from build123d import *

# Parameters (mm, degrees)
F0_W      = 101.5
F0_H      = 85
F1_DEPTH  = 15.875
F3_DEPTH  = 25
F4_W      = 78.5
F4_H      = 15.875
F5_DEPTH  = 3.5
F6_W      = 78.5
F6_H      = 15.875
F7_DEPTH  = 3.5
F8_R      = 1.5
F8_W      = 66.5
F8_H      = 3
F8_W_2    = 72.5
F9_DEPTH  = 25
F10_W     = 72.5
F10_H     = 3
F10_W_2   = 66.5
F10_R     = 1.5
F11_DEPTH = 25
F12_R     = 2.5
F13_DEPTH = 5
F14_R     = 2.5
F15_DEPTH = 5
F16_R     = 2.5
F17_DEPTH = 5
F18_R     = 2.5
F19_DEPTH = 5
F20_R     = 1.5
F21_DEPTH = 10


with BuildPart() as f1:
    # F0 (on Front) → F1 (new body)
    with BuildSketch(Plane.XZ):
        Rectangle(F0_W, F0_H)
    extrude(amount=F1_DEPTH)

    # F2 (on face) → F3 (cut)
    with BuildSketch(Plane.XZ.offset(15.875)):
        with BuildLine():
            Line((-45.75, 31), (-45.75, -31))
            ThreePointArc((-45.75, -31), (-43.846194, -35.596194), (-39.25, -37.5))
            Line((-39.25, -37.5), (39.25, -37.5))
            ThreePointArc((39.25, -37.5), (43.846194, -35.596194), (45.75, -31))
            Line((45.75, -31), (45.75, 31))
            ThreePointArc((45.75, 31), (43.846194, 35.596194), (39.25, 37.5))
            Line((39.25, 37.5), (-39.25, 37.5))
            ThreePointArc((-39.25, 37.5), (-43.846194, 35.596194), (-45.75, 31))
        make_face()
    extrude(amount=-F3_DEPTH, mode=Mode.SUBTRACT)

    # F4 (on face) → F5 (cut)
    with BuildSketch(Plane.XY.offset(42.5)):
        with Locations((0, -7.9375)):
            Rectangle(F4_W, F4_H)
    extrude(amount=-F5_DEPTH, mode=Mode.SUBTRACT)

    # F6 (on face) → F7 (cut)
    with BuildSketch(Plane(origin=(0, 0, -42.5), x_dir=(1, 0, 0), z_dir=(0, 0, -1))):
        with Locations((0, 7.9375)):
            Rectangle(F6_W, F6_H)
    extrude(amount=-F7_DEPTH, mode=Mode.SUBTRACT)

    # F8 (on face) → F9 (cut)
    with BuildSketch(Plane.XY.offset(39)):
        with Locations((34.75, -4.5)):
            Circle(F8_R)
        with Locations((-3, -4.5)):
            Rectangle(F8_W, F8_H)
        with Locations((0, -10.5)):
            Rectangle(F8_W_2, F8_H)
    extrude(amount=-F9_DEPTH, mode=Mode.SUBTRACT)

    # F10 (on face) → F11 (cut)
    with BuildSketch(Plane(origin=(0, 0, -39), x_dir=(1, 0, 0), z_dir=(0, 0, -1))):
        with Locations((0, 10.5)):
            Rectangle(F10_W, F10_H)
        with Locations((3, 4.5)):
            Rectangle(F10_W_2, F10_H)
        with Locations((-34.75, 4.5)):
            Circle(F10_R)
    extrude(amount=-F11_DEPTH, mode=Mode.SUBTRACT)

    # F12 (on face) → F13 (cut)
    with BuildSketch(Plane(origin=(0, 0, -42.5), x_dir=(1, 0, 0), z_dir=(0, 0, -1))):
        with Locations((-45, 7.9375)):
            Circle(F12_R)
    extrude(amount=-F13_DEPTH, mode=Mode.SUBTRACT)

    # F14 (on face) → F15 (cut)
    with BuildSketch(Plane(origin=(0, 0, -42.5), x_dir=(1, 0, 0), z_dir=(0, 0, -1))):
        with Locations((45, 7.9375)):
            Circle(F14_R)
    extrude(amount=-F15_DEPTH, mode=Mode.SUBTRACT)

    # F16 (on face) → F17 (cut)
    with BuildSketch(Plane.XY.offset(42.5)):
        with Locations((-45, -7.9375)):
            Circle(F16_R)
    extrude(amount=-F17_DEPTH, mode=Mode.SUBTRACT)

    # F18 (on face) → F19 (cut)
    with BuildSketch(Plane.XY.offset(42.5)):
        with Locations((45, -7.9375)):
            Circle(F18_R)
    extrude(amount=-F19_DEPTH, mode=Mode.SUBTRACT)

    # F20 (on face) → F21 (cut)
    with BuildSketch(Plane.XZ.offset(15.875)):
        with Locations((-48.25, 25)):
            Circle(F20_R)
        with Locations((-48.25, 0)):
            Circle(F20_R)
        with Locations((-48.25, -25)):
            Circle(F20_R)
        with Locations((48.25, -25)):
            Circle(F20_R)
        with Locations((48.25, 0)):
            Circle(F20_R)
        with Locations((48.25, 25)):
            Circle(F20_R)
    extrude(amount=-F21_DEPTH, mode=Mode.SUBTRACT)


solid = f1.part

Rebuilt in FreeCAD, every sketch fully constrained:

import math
import FreeCAD as App
import Part
import Sketcher
from FreeCAD import Vector


def add_polygon(sketch, points):
    """Adds a closed chain of lines whose ends are joined by coincident constraints."""
    first, n = sketch.GeometryCount, len(points)
    for a, b in zip(points, points[1:] + points[:1]):
        sketch.addGeometry(Part.LineSegment(App.Vector(*a, 0), App.Vector(*b, 0)), False)
    for i in range(n):
        sketch.addConstraint(Sketcher.Constraint("Coincident", first + i, 2, first + (i + 1) % n, 1))

doc = App.newDocument("Part")
body = doc.addObject("PartDesign::Body", "Body")

# Sketch on XZ plane
sketch1 = doc.addObject("Sketcher::SketchObject", "Sketch")
body.addObject(sketch1)
sketch1.AttachmentSupport = (doc.XZ_Plane, [""])
sketch1.MapMode = "FlatFace"
add_polygon(sketch1, [(-51, 42), (-51, -42), (51, -42), (51, 42)])  # lines 0-3
sketch1.addConstraint([
    Sketcher.Constraint("Vertical", 0),
    Sketcher.Constraint("Horizontal", 1),
    Sketcher.Constraint("Vertical", 2),
    Sketcher.Constraint("Horizontal", 3),
    Sketcher.Constraint("Symmetric", 0, 2, 2, 2, -1, 1),
    Sketcher.Constraint("DistanceY", 0, 2, 0, 1, 85.0),
    Sketcher.Constraint("DistanceX", 1, 1, 1, 2, 101.5),
])
pad1 = doc.addObject("PartDesign::Pad", "Pad")
body.addObject(pad1)
pad1.Profile = sketch1
pad1.Length = 15.875

# Sketch on XZ plane
sketch2 = doc.addObject("Sketcher::SketchObject", "Sketch001")
body.addObject(sketch2)
sketch2.AttachmentSupport = (doc.XZ_Plane, [""])
sketch2.MapMode = "FlatFace"
sketch2.AttachmentOffset = App.Placement(Vector(0, 0, 15.875), App.Rotation())
sketch2.addGeometry([
    Part.LineSegment(Vector(-46, 31, 0), Vector(-46, -31, 0)),  # 0
    Part.ArcOfCircle(Part.Circle(Vector(-39, -31, 0), Vector(0, 0, 1), 7), math.radians(-180), math.radians(-90)),  # 1
    Part.LineSegment(Vector(-39, -38, 0), Vector(39, -38, 0)),  # 2
    Part.ArcOfCircle(Part.Circle(Vector(39, -31, 0), Vector(0, 0, 1), 7), math.radians(-90), math.radians(0)),  # 3
    Part.LineSegment(Vector(46, -31, 0), Vector(46, 31, 0)),  # 4
    Part.ArcOfCircle(Part.Circle(Vector(39, 31, 0), Vector(0, 0, 1), 7), math.radians(0), math.radians(90)),  # 5
    Part.LineSegment(Vector(39, 38, 0), Vector(-39, 38, 0)),  # 6
    Part.ArcOfCircle(Part.Circle(Vector(-39, 31, 0), Vector(0, 0, 1), 7), math.radians(90), math.radians(180)),  # 7
], False)
sketch2.addConstraint([
    Sketcher.Constraint("Tangent", 0, 2, 1, 1),
    Sketcher.Constraint("Tangent", 1, 2, 2, 1),
    Sketcher.Constraint("Tangent", 2, 2, 3, 1),
    Sketcher.Constraint("Tangent", 3, 2, 4, 1),
    Sketcher.Constraint("Tangent", 4, 2, 5, 1),
    Sketcher.Constraint("Tangent", 5, 2, 6, 1),
    Sketcher.Constraint("Tangent", 6, 2, 7, 1),
    Sketcher.Constraint("Tangent", 7, 2, 0, 1),
    Sketcher.Constraint("Vertical", 0),
    Sketcher.Constraint("Horizontal", 2),
    Sketcher.Constraint("Vertical", 4),
    Sketcher.Constraint("Horizontal", 6),
    Sketcher.Constraint("Equal", 1, 3),
    Sketcher.Constraint("Equal", 3, 5),
    Sketcher.Constraint("Equal", 5, 7),
    Sketcher.Constraint("Symmetric", 1, 3, 5, 3, -1, 1),
    Sketcher.Constraint("Radius", 1, 6.5),
    Sketcher.Constraint("DistanceY", 0, 2, 0, 1, 62.0),
    Sketcher.Constraint("DistanceX", 2, 1, 2, 2, 78.5),
])
pocket1 = doc.addObject("PartDesign::Pocket", "Pocket")
body.addObject(pocket1)
pocket1.Profile = sketch2
pocket1.Length = 25

# Sketch on XY plane
sketch3 = doc.addObject("Sketcher::SketchObject", "Sketch002")
body.addObject(sketch3)
sketch3.AttachmentSupport = (doc.XY_Plane, [""])
sketch3.MapMode = "FlatFace"
sketch3.AttachmentOffset = App.Placement(Vector(0, 0, 42.5), App.Rotation())
add_polygon(sketch3, [(-39, 0), (-39, -16), (39, -16), (39, 0)])  # lines 0-3
sketch3.addConstraint([
    Sketcher.Constraint("Vertical", 0),
    Sketcher.Constraint("Horizontal", 1),
    Sketcher.Constraint("Vertical", 2),
    Sketcher.Constraint("Horizontal", 3),
    Sketcher.Constraint("Symmetric", 2, 2, 3, 2, -1, 1),
    Sketcher.Constraint("DistanceX", 1, 1, 1, 2, 78.5),
    Sketcher.Constraint("DistanceY", 0, 2, 0, 1, 15.875),
])
pocket2 = doc.addObject("PartDesign::Pocket", "Pocket001")
body.addObject(pocket2)
pocket2.Profile = sketch3
pocket2.Length = 3.5

# Sketch on XY plane
sketch4 = doc.addObject("Sketcher::SketchObject", "Sketch003")
body.addObject(sketch4)
sketch4.AttachmentSupport = (doc.XY_Plane, [""])
sketch4.MapMode = "FlatFace"
sketch4.AttachmentOffset = App.Placement(Vector(0, 0, -42.5), App.Rotation())
add_polygon(sketch4, [(-39, -16), (-39, 0), (39, 0), (39, -16)])  # lines 0-3
sketch4.addConstraint([
    Sketcher.Constraint("Vertical", 0),
    Sketcher.Constraint("Horizontal", 1),
    Sketcher.Constraint("Vertical", 2),
    Sketcher.Constraint("Horizontal", 3),
    Sketcher.Constraint("Symmetric", 0, 2, 1, 2, -1, 1),
    Sketcher.Constraint("DistanceX", 1, 1, 1, 2, 78.5),
    Sketcher.Constraint("DistanceY", 0, 1, 0, 2, 15.875),
])
pocket3 = doc.addObject("PartDesign::Pocket", "Pocket002")
body.addObject(pocket3)
pocket3.Profile = sketch4
pocket3.Length = 3.5
pocket3.Reversed = True

# Sketch on XY plane
sketch5 = doc.addObject("Sketcher::SketchObject", "Sketch004")
body.addObject(sketch5)
sketch5.AttachmentSupport = (doc.XY_Plane, [""])
sketch5.MapMode = "FlatFace"
sketch5.AttachmentOffset = App.Placement(Vector(0, 0, 39), App.Rotation())
sketch5.addGeometry(Part.Circle(Vector(34.8, -4.5, 0), Vector(0, 0, 1), 1.5), False)  # 0
add_polygon(sketch5, [(-36.2, -3), (-36.2, -6), (30.2, -6), (30.2, -3)])  # lines 1-4
add_polygon(sketch5, [(-36.2, -9), (-36.2, -12), (36.2, -12), (36.2, -9)])  # lines 5-8
sketch5.addConstraint([
    Sketcher.Constraint("Vertical", 1),
    Sketcher.Constraint("Horizontal", 2),
    Sketcher.Constraint("Vertical", 3),
    Sketcher.Constraint("Horizontal", 4),
    Sketcher.Constraint("Vertical", 5),
    Sketcher.Constraint("Horizontal", 6),
    Sketcher.Constraint("Vertical", 7),
    Sketcher.Constraint("Horizontal", 8),
    Sketcher.Constraint("Vertical", 4, 2, 5, 2),
    Sketcher.Constraint("Equal", 3, 5),
    Sketcher.Constraint("Diameter", 0, 3.0),
    Sketcher.Constraint("DistanceY", 1, 2, 1, 1, 3.0),
    Sketcher.Constraint("DistanceX", 2, 1, 2, 2, 66.5),
    Sketcher.Constraint("DistanceX", 6, 1, 6, 2, 72.5),
    Sketcher.Constraint("DistanceY", 1, 2, -1, 1, 6.0),
    Sketcher.Constraint("DistanceY", 5, 2, -1, 1, 12.0),
    Sketcher.Constraint("DistanceX", 1, 2, 0, 3, 71.0),
    Sketcher.Constraint("DistanceY", 0, 3, -1, 1, 4.5),
    Sketcher.Constraint("DistanceX", -1, 1, 0, 3, 34.75),
])
pocket4 = doc.addObject("PartDesign::Pocket", "Pocket003")
body.addObject(pocket4)
pocket4.Profile = sketch5
pocket4.Length = 25

# Sketch on XY plane
sketch6 = doc.addObject("Sketcher::SketchObject", "Sketch005")
body.addObject(sketch6)
sketch6.AttachmentSupport = (doc.XY_Plane, [""])
sketch6.MapMode = "FlatFace"
sketch6.AttachmentOffset = App.Placement(Vector(0, 0, -39), App.Rotation())
add_polygon(sketch6, [(-36.2, -12), (-36.2, -9), (36.2, -9), (36.2, -12)])  # lines 0-3
add_polygon(sketch6, [(-30.2, -6), (-30.2, -3), (36.2, -3), (36.2, -6)])  # lines 4-7
sketch6.addGeometry(Part.Circle(Vector(-34.8, -4.5, 0), Vector(0, 0, 1), 1.5), False)  # 8
sketch6.addConstraint([
    Sketcher.Constraint("Vertical", 0),
    Sketcher.Constraint("Horizontal", 1),
    Sketcher.Constraint("Vertical", 2),
    Sketcher.Constraint("Horizontal", 3),
    Sketcher.Constraint("Vertical", 4),
    Sketcher.Constraint("Horizontal", 5),
    Sketcher.Constraint("Vertical", 6),
    Sketcher.Constraint("Horizontal", 7),
    Sketcher.Constraint("Vertical", 2, 2, 5, 2),
    Sketcher.Constraint("Equal", 2, 4),
    Sketcher.Constraint("Diameter", 8, 3.0),
    Sketcher.Constraint("DistanceY", 0, 1, 0, 2, 3.0),
    Sketcher.Constraint("DistanceX", 1, 1, 1, 2, 72.5),
    Sketcher.Constraint("DistanceX", 5, 1, 5, 2, 66.5),
    Sketcher.Constraint("DistanceY", 0, 2, -1, 1, 9.0),
    Sketcher.Constraint("DistanceY", 4, 2, -1, 1, 3.0),
    Sketcher.Constraint("DistanceX", 8, 3, 1, 2, 71.0),
    Sketcher.Constraint("DistanceY", 8, 3, -1, 1, 4.5),
    Sketcher.Constraint("DistanceX", 8, 3, -1, 1, 34.75),
])
pocket5 = doc.addObject("PartDesign::Pocket", "Pocket004")
body.addObject(pocket5)
pocket5.Profile = sketch6
pocket5.Length = 25
pocket5.Reversed = True

# Sketch on XY plane
sketch7 = doc.addObject("Sketcher::SketchObject", "Sketch006")
body.addObject(sketch7)
sketch7.AttachmentSupport = (doc.XY_Plane, [""])
sketch7.MapMode = "FlatFace"
sketch7.AttachmentOffset = App.Placement(Vector(0, 0, -42.5), App.Rotation())
sketch7.addGeometry(Part.Circle(Vector(-45, -7.9, 0), Vector(0, 0, 1), 2.5), False)
sketch7.addConstraint([
    Sketcher.Constraint("Diameter", 0, 5.0),
    Sketcher.Constraint("DistanceX", 0, 3, -1, 1, 45.0),
    Sketcher.Constraint("DistanceY", 0, 3, -1, 1, 7.9375),
])
pocket6 = doc.addObject("PartDesign::Pocket", "Pocket005")
body.addObject(pocket6)
pocket6.Profile = sketch7
pocket6.Length = 5
pocket6.Reversed = True

# Sketch on XY plane
sketch8 = doc.addObject("Sketcher::SketchObject", "Sketch007")
body.addObject(sketch8)
sketch8.AttachmentSupport = (doc.XY_Plane, [""])
sketch8.MapMode = "FlatFace"
sketch8.AttachmentOffset = App.Placement(Vector(0, 0, -42.5), App.Rotation())
sketch8.addGeometry(Part.Circle(Vector(45, -7.9, 0), Vector(0, 0, 1), 2.5), False)
sketch8.addConstraint([
    Sketcher.Constraint("Diameter", 0, 5.0),
    Sketcher.Constraint("DistanceX", -1, 1, 0, 3, 45.0),
    Sketcher.Constraint("DistanceY", 0, 3, -1, 1, 7.9375),
])
pocket7 = doc.addObject("PartDesign::Pocket", "Pocket006")
body.addObject(pocket7)
pocket7.Profile = sketch8
pocket7.Length = 5
pocket7.Reversed = True

# Sketch on XY plane
sketch9 = doc.addObject("Sketcher::SketchObject", "Sketch008")
body.addObject(sketch9)
sketch9.AttachmentSupport = (doc.XY_Plane, [""])
sketch9.MapMode = "FlatFace"
sketch9.AttachmentOffset = App.Placement(Vector(0, 0, 42.5), App.Rotation())
sketch9.addGeometry(Part.Circle(Vector(-45, -7.9, 0), Vector(0, 0, 1), 2.5), False)
sketch9.addConstraint([
    Sketcher.Constraint("Diameter", 0, 5.0),
    Sketcher.Constraint("DistanceX", 0, 3, -1, 1, 45.0),
    Sketcher.Constraint("DistanceY", 0, 3, -1, 1, 7.9375),
])
pocket8 = doc.addObject("PartDesign::Pocket", "Pocket007")
body.addObject(pocket8)
pocket8.Profile = sketch9
pocket8.Length = 5

# Sketch on XY plane
sketch10 = doc.addObject("Sketcher::SketchObject", "Sketch009")
body.addObject(sketch10)
sketch10.AttachmentSupport = (doc.XY_Plane, [""])
sketch10.MapMode = "FlatFace"
sketch10.AttachmentOffset = App.Placement(Vector(0, 0, 42.5), App.Rotation())
sketch10.addGeometry(Part.Circle(Vector(45, -7.9, 0), Vector(0, 0, 1), 2.5), False)
sketch10.addConstraint([
    Sketcher.Constraint("Diameter", 0, 5.0),
    Sketcher.Constraint("DistanceX", -1, 1, 0, 3, 45.0),
    Sketcher.Constraint("DistanceY", 0, 3, -1, 1, 7.9375),
])
pocket9 = doc.addObject("PartDesign::Pocket", "Pocket008")
body.addObject(pocket9)
pocket9.Profile = sketch10
pocket9.Length = 5

# Sketch on XZ plane
sketch11 = doc.addObject("Sketcher::SketchObject", "Sketch010")
body.addObject(sketch11)
sketch11.AttachmentSupport = (doc.XZ_Plane, [""])
sketch11.MapMode = "FlatFace"
sketch11.AttachmentOffset = App.Placement(Vector(0, 0, 15.875), App.Rotation())
sketch11.addGeometry([
    Part.Circle(Vector(-48.2, 25, 0), Vector(0, 0, 1), 1.5),  # 0
    Part.Circle(Vector(-48.2, 0, 0), Vector(0, 0, 1), 1.5),  # 1
    Part.Circle(Vector(-48.2, -25, 0), Vector(0, 0, 1), 1.5),  # 2
    Part.Circle(Vector(48.2, -25, 0), Vector(0, 0, 1), 1.5),  # 3
    Part.Circle(Vector(48.2, 0, 0), Vector(0, 0, 1), 1.5),  # 4
    Part.Circle(Vector(48.2, 25, 0), Vector(0, 0, 1), 1.5),  # 5
], False)
sketch11.addConstraint([
    Sketcher.Constraint("Equal", 0, 1),
    Sketcher.Constraint("Equal", 1, 2),
    Sketcher.Constraint("Equal", 2, 3),
    Sketcher.Constraint("Equal", 3, 4),
    Sketcher.Constraint("Equal", 4, 5),
    Sketcher.Constraint("Symmetric", 0, 3, 3, 3, -1, 1),
    Sketcher.Constraint("Symmetric", 1, 3, 4, 3, -1, 1),
    Sketcher.Constraint("Symmetric", 2, 3, 5, 3, -1, 1),
    Sketcher.Constraint("Symmetric", 2, 3, 3, 3, -2),
    Sketcher.Constraint("PointOnObject", 1, 3, -1),
    Sketcher.Constraint("Vertical", 0, 3, 1, 3),
    Sketcher.Constraint("Diameter", 0, 3.0),
    Sketcher.Constraint("DistanceY", -1, 1, 0, 3, 25.0),
    Sketcher.Constraint("DistanceX", 2, 3, 3, 3, 96.5),
])
pocket10 = doc.addObject("PartDesign::Pocket", "Pocket009")
body.addObject(pocket10)
pocket10.Profile = sketch11
pocket10.Length = 10

doc.recompute()
